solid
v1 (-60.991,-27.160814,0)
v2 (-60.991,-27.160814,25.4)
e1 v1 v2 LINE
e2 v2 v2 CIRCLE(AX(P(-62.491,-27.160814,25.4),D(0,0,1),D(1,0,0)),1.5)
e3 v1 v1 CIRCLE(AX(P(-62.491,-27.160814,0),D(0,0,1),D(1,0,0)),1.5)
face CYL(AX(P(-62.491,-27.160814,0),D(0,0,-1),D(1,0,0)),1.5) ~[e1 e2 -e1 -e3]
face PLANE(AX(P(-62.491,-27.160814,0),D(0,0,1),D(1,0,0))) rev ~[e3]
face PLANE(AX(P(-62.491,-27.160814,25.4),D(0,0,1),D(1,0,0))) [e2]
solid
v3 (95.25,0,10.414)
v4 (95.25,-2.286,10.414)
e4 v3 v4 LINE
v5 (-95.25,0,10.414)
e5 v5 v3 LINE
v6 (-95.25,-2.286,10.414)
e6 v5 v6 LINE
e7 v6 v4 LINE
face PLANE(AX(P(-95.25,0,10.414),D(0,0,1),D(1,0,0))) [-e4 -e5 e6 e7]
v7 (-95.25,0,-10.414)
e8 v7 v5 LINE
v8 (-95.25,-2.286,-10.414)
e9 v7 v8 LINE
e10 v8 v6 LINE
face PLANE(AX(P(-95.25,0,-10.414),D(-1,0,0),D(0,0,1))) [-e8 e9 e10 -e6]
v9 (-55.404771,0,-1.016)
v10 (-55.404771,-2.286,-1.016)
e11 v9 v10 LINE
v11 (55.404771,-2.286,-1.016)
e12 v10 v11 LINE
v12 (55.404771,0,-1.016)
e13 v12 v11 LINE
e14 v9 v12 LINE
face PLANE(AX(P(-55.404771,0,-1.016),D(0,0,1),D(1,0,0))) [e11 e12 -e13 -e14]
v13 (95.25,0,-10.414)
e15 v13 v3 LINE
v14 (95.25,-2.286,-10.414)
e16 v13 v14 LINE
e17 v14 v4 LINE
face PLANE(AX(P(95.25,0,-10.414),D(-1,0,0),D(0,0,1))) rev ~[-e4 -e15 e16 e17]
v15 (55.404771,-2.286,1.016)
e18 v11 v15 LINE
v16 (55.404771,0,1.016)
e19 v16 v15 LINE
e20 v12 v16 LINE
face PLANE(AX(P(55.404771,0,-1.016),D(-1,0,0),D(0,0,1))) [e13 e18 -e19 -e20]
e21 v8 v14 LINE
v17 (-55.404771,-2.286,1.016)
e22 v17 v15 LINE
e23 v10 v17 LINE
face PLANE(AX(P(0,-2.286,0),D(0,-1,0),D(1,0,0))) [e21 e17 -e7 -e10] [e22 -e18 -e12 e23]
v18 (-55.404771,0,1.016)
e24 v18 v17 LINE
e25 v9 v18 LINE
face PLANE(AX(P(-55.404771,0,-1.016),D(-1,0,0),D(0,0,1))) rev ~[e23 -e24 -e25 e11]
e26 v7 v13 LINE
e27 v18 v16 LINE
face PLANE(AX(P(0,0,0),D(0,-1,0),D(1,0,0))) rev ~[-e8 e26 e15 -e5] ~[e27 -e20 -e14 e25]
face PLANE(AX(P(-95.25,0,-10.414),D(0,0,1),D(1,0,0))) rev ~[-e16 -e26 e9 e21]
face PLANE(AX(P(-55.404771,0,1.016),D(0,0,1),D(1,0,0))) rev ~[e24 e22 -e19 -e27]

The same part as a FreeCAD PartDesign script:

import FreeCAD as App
import Part
import Sketcher
from FreeCAD import Vector
Q = App.Units.Quantity

doc = App.newDocument("Part")
body = doc.addObject("PartDesign::Body", "Body")

# Sketch on XZ plane
sketch1 = body.newObject("Sketcher::SketchObject", "Sketch")
sketch1.AttachmentSupport = (doc.getObject("XZ_Plane"), [""])
sketch1.MapMode = "FlatFace"
sketch1.addGeometry([
    Part.LineSegment(Vector(-95.2, 10.4, 0), Vector(-95.2, -10.4, 0)),  # 0
    Part.LineSegment(Vector(-95.2, -10.4, 0), Vector(95.2, -10.4, 0)),  # 1
    Part.LineSegment(Vector(95.2, -10.4, 0), Vector(95.2, 10.4, 0)),  # 2
    Part.LineSegment(Vector(95.2, 10.4, 0), Vector(-95.2, 10.4, 0)),  # 3
    Part.LineSegment(Vector(55.4, -1, 0), Vector(-55.4, -1, 0)),  # 4
    Part.LineSegment(Vector(-55.4, -1, 0), Vector(-55.4, 1, 0)),  # 5
    Part.LineSegment(Vector(-55.4, 1, 0), Vector(55.4, 1, 0)),  # 6
    Part.LineSegment(Vector(55.4, 1, 0), Vector(55.4, -1, 0)),  # 7
], False)
sketch1.addConstraint([
    Sketcher.Constraint("Coincident", 0, 2, 1, 1),
    Sketcher.Constraint("Coincident", 1, 2, 2, 1),
    Sketcher.Constraint("Coincident", 2, 2, 3, 1),
    Sketcher.Constraint("Coincident", 3, 2, 0, 1),
    Sketcher.Constraint("Coincident", 4, 2, 5, 1),
    Sketcher.Constraint("Coincident", 5, 2, 6, 1),
    Sketcher.Constraint("Coincident", 6, 2, 7, 1),
    Sketcher.Constraint("Coincident", 7, 2, 4, 1),
    Sketcher.Constraint("Vertical", 0),
    Sketcher.Constraint("Horizontal", 1),
    Sketcher.Constraint("Vertical", 2),
    Sketcher.Constraint("Horizontal", 3),
    Sketcher.Constraint("Horizontal", 4),
    Sketcher.Constraint("Vertical", 5),
    Sketcher.Constraint("Horizontal", 6),
    Sketcher.Constraint("Vertical", 7),
    Sketcher.Constraint("Symmetric", 0, 2, 2, 2, -1, 1),
    Sketcher.Constraint("Symmetric", 4, 2, 6, 2, -1, 1),
    Sketcher.Constraint("DistanceX", 1, 1, 1, 2, Q("7.5 in")),
    Sketcher.Constraint("DistanceY", 0, 2, 0, 1, Q("0.82 in")),
    Sketcher.Constraint("DistanceY", 5, 1, 5, 2, Q("0.08 in")),
    Sketcher.Constraint("DistanceX", 4, 2, 4, 1, 110.809542),
])
pad1 = body.newObject("PartDesign::Pad", "Pad")
pad1.Profile = sketch1
pad1.Length = Q("0.09 in")
body2 = doc.addObject("PartDesign::Body", "Body001")

# Sketch on XY plane
sketch2 = body2.newObject("Sketcher::SketchObject", "Sketch001")
sketch2.AttachmentSupport = (doc.getObject("XY_Plane001"), [""])
sketch2.MapMode = "FlatFace"
sketch2.addGeometry(Part.Circle(Vector(-62.5, -27.2, 0), Vector(0, 0, 1), 1.5), False)
sketch2.addConstraint([
    Sketcher.Constraint("Diameter", 0, 3.0),
    Sketcher.Constraint("DistanceX", 0, 3, -1, 1, 62.491),
    Sketcher.Constraint("DistanceY", 0, 3, -1, 1, 27.160814),
])
pad2 = body2.newObject("PartDesign::Pad", "Pad001")
pad2.Profile = sketch2
pad2.Length = Q("1 in")

doc.recompute()
